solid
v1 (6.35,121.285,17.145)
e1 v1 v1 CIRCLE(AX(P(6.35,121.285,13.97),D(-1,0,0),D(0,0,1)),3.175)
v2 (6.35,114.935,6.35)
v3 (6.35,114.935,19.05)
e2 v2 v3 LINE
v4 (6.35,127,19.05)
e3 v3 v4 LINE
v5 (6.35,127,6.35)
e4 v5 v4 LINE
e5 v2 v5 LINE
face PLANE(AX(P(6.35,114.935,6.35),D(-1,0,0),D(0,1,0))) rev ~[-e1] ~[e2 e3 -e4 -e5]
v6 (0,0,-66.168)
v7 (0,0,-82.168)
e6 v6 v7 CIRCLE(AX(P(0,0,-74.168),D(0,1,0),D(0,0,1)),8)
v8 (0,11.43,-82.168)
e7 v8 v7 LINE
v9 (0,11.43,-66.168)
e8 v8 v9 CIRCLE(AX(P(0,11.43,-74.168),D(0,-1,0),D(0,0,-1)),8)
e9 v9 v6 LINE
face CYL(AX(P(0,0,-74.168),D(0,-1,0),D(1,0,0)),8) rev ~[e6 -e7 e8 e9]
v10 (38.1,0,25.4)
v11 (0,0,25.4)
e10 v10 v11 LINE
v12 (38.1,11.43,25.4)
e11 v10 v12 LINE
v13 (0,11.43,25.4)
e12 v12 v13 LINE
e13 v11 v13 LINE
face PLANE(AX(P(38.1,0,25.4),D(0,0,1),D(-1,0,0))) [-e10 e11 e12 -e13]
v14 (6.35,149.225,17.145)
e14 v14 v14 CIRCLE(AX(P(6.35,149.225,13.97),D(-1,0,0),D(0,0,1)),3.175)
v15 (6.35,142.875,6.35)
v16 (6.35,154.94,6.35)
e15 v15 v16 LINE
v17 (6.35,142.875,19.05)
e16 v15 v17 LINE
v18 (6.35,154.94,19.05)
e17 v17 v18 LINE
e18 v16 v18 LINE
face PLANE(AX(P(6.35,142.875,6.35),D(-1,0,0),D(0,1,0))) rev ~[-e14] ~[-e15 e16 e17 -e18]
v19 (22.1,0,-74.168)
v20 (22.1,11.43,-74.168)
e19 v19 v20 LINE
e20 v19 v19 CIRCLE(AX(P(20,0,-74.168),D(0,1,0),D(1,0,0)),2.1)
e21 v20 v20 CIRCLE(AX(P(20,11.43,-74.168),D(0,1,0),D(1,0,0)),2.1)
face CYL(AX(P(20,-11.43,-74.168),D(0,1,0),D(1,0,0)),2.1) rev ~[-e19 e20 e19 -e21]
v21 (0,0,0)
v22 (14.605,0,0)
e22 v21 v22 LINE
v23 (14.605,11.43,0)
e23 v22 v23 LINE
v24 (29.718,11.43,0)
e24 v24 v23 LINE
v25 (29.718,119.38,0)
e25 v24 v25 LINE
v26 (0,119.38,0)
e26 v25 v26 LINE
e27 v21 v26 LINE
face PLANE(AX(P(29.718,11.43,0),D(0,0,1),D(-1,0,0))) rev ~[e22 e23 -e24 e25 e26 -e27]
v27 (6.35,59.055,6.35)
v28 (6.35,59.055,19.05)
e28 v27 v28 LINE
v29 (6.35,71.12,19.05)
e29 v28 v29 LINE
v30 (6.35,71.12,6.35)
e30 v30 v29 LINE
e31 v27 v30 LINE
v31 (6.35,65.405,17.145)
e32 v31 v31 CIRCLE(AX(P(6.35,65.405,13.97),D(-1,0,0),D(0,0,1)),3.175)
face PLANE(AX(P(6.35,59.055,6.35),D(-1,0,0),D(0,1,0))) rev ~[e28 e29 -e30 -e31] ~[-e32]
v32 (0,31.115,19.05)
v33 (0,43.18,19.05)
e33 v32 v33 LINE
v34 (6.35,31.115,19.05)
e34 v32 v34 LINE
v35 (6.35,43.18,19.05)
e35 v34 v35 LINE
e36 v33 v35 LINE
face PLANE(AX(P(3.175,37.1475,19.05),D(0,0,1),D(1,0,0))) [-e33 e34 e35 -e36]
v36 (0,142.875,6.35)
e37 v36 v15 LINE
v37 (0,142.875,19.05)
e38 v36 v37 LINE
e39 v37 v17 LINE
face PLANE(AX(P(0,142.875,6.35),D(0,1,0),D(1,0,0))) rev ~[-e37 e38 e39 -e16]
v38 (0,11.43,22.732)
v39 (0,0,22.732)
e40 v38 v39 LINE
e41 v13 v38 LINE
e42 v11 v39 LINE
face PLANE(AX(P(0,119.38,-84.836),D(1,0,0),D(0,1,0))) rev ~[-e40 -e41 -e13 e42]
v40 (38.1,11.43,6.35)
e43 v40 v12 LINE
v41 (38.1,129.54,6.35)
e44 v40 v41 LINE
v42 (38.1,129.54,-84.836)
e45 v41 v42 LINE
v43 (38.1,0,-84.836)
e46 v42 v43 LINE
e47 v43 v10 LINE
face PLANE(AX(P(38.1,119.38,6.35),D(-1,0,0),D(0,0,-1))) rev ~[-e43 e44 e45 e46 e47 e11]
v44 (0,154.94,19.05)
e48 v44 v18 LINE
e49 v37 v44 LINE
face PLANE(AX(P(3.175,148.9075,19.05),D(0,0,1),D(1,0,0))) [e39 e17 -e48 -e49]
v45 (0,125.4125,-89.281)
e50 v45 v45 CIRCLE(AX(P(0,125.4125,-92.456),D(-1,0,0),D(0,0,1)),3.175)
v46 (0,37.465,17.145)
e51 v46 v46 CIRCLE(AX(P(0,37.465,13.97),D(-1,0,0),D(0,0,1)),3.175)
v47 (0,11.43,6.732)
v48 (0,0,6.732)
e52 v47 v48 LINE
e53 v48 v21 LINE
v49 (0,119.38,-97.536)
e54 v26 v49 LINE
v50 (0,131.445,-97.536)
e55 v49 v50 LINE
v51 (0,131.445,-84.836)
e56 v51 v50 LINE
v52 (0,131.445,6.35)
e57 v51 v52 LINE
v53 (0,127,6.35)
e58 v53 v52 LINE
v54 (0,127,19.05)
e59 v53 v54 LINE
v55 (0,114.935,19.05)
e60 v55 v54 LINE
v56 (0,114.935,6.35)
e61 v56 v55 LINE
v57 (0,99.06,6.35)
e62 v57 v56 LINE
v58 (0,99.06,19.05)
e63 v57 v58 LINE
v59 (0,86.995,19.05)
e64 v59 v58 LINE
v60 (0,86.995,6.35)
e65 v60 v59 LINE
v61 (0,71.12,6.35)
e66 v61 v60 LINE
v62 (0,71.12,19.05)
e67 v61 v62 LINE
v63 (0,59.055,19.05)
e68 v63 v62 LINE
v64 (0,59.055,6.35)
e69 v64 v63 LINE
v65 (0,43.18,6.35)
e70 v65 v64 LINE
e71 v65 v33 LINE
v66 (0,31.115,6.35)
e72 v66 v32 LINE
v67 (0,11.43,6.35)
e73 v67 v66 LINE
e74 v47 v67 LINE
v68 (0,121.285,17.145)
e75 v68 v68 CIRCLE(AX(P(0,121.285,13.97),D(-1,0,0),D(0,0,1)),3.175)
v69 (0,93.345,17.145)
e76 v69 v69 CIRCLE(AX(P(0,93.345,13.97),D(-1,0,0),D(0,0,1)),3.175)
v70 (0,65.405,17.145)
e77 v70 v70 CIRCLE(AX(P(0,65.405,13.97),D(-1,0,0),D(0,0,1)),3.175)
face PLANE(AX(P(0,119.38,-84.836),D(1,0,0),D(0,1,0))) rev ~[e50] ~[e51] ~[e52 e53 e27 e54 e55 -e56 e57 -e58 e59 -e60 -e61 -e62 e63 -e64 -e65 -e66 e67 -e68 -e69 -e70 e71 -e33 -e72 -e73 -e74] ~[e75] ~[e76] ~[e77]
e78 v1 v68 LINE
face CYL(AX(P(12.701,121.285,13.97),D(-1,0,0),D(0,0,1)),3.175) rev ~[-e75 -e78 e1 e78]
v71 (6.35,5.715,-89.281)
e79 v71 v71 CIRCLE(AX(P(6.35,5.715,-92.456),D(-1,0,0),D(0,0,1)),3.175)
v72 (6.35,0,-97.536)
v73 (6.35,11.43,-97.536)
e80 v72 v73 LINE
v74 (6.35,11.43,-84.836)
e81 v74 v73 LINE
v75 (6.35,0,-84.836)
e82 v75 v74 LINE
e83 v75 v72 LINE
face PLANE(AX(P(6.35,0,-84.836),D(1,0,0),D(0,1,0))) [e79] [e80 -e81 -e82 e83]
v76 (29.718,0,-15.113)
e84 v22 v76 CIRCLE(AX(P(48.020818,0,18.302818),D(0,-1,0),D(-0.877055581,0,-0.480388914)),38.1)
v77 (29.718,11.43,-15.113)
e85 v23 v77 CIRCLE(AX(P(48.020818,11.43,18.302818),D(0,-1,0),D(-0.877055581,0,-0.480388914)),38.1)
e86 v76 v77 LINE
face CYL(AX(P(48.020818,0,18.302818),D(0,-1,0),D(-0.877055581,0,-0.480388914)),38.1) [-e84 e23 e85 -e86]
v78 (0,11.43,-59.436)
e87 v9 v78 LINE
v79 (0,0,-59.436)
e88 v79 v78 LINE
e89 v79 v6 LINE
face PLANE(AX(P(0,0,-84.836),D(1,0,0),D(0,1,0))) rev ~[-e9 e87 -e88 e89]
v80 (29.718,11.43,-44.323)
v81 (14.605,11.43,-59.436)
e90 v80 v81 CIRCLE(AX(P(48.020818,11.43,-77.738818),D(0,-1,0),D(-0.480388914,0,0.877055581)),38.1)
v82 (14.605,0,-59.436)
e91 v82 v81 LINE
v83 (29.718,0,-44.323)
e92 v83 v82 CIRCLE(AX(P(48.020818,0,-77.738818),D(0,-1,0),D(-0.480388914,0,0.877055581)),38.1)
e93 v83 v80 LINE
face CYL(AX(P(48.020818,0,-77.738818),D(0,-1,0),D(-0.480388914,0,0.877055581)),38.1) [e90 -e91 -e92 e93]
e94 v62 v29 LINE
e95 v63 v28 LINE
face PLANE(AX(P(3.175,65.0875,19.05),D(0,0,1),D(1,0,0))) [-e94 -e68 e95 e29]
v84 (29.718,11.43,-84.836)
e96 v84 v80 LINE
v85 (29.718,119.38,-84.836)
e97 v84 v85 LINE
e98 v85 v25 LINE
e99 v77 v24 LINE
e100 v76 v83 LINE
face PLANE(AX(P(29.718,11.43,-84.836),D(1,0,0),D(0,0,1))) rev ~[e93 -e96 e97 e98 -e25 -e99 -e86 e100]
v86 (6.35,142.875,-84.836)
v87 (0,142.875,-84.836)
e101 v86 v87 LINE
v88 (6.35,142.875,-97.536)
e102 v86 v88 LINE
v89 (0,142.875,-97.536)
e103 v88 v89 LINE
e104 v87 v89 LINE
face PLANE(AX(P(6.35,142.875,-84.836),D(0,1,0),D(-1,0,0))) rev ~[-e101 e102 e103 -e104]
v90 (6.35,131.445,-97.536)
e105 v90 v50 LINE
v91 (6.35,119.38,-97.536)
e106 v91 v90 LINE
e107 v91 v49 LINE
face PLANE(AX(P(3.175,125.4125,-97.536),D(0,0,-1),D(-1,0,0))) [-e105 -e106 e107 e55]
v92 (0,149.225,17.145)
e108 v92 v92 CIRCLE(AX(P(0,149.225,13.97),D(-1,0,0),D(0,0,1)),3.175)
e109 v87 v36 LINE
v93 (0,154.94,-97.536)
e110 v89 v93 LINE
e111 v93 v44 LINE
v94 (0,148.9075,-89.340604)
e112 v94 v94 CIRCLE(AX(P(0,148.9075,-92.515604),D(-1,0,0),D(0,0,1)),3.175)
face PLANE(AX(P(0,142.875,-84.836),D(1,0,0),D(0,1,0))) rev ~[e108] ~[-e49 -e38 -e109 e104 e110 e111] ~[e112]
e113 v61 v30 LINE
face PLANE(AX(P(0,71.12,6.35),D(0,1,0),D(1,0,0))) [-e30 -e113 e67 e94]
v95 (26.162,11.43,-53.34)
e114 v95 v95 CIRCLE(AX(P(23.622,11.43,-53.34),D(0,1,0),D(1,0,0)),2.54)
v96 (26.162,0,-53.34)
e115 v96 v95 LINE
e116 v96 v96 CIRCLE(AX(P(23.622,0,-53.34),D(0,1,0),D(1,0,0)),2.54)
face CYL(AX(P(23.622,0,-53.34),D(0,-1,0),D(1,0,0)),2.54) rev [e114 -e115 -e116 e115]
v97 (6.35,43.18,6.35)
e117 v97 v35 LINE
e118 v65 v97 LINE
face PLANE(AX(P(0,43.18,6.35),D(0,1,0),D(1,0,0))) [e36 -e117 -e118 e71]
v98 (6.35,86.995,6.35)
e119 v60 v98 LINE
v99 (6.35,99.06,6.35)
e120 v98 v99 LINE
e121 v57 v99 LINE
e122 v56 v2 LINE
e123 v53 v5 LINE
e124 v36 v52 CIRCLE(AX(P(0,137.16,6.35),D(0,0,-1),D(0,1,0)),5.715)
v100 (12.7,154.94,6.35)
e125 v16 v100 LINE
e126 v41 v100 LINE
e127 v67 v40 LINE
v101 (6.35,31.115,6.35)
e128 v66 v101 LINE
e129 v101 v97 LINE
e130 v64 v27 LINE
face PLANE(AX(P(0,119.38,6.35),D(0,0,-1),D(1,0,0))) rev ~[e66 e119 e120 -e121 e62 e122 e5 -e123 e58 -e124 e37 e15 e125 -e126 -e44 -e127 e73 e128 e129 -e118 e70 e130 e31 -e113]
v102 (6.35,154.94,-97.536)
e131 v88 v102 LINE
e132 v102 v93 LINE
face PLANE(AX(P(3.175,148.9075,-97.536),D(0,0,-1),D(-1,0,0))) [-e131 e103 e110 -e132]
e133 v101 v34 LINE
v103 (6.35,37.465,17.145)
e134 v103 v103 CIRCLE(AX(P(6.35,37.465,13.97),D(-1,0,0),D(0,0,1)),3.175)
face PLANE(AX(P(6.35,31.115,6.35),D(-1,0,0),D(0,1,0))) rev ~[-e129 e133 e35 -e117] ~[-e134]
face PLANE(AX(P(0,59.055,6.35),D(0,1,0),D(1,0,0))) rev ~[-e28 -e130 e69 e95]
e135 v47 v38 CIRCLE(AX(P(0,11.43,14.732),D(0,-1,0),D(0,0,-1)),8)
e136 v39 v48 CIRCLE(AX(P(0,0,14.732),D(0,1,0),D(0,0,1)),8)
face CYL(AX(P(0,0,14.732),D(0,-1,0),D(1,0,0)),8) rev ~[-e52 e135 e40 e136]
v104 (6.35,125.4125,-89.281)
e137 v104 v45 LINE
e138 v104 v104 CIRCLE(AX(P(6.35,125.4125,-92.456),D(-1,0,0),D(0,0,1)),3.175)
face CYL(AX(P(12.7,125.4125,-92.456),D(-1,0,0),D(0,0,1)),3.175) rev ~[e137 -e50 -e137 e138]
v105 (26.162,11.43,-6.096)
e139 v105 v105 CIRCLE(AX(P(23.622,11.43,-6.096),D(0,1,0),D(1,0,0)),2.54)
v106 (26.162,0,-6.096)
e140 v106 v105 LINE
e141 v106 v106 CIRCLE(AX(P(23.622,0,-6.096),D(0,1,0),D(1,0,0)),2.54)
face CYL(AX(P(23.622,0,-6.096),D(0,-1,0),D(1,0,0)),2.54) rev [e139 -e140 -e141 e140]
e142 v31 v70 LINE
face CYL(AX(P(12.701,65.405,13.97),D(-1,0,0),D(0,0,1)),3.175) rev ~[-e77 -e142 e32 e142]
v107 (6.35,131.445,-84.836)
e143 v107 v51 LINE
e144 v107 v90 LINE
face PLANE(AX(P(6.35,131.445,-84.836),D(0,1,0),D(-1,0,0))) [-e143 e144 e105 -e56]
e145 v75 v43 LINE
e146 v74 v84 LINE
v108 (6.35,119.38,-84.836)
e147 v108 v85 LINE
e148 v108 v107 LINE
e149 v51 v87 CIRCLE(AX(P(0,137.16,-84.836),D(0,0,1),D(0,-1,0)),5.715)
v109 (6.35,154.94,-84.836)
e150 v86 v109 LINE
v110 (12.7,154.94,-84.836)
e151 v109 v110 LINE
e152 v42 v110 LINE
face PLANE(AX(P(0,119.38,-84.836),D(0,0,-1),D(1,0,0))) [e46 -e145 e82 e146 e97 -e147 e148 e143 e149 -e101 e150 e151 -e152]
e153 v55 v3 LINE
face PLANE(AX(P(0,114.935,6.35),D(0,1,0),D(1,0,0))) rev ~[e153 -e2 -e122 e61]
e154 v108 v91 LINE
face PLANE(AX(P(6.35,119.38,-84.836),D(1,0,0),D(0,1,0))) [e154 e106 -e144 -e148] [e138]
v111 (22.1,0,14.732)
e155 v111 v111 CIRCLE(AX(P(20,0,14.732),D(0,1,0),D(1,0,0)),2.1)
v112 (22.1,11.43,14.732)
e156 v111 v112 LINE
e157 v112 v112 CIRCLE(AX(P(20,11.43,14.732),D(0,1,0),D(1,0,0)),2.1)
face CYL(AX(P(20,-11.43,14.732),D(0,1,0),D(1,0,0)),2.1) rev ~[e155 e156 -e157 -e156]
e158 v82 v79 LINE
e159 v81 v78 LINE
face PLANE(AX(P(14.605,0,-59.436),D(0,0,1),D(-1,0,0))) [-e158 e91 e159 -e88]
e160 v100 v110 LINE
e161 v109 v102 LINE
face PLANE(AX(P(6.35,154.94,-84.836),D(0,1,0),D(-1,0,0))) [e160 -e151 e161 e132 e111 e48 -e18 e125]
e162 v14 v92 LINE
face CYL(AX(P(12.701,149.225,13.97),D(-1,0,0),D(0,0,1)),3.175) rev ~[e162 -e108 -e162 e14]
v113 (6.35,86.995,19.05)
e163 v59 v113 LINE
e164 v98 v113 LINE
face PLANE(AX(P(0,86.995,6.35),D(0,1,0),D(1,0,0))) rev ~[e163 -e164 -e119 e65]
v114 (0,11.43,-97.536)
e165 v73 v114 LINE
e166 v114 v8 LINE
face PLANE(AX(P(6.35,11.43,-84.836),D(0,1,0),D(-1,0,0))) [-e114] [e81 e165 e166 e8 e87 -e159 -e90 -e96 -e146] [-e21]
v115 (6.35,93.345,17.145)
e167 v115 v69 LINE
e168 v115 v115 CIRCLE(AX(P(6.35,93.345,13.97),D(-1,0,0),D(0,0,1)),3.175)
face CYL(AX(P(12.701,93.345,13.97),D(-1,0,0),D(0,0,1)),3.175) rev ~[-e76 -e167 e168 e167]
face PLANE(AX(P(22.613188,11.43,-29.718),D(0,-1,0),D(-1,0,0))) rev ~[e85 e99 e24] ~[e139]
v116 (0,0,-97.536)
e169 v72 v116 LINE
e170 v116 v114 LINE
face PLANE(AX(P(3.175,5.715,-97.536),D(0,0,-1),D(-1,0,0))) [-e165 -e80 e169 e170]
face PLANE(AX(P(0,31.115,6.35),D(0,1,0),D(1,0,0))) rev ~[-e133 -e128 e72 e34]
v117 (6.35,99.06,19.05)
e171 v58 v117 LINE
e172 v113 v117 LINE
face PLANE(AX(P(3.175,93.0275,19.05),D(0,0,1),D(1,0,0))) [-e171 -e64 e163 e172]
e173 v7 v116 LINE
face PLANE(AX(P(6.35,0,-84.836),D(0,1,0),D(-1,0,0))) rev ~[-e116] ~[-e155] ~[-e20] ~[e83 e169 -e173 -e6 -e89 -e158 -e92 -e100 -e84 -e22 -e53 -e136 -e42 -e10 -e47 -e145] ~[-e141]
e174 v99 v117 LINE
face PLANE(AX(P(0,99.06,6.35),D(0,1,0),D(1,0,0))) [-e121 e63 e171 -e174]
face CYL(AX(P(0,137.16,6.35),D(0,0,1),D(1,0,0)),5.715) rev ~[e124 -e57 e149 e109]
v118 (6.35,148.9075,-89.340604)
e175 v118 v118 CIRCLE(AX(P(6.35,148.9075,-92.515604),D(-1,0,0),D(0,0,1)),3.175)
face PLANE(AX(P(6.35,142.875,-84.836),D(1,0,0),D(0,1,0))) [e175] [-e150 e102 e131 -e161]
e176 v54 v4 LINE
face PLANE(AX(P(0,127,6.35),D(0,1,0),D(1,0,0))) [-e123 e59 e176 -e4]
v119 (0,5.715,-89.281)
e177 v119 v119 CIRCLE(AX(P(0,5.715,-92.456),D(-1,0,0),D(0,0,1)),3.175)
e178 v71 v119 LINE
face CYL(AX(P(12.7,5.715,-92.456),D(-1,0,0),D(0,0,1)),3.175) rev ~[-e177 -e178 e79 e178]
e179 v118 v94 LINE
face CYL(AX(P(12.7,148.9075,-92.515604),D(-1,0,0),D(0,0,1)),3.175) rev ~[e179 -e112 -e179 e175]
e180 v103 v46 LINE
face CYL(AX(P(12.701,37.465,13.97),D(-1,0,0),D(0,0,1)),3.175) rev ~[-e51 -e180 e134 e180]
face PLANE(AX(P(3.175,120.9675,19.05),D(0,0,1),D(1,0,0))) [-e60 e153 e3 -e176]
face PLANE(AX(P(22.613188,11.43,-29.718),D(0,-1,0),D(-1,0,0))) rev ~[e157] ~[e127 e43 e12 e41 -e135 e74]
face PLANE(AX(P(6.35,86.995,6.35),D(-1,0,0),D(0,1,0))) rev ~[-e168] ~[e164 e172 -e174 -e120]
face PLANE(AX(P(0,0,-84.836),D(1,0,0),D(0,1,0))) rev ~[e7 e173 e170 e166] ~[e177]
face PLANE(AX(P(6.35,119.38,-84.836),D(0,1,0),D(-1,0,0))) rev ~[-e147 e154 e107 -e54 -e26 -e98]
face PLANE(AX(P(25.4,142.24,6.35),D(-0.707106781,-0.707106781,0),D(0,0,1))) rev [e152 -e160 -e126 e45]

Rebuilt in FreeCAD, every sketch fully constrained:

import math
import FreeCAD as App
import Part
import Sketcher
from FreeCAD import Vector
Q = App.Units.Quantity


def edges_at(feature, points):
    """Names of the edges that pass closest to the given points."""
    edges = feature.Shape.Edges
    near = lambda p: min(range(len(edges)), key=lambda i: edges[i].distToShape(Part.Vertex(*p))[0])
    return sorted({f"Edge{near(p) + 1}" for p in points})

doc = App.newDocument("Part")
body = doc.addObject("PartDesign::Body", "Body")

# Sketch on XZ plane
sketch1 = body.newObject("Sketcher::SketchObject", "Sketch")
sketch1.AttachmentSupport = (doc.getObject("XZ_Plane"), [""])
sketch1.MapMode = "FlatFace"
sketch1.addGeometry(Part.LineSegment(Vector(14.605, 0, 0), Vector(0, 0, 0)), False)
sketch1.addGeometry(Part.LineSegment(Vector(0, 0, 0), Vector(0, 25.4, 0)), False)
sketch1.addGeometry(Part.LineSegment(Vector(0, 25.4, 0), Vector(38.1, 25.4, 0)), False)
sketch1.addGeometry(Part.LineSegment(Vector(38.1, 25.4, 0), Vector(38.1, -84.836, 0)), False)
sketch1.addGeometry(Part.LineSegment(Vector(38.1, -84.836, 0), Vector(0, -84.836, 0)), False)
sketch1.addGeometry(Part.LineSegment(Vector(0, -84.836, 0), Vector(0, -59.436, 0)), False)
sketch1.addGeometry(Part.LineSegment(Vector(0, -59.436, 0), Vector(14.605, -59.436, 0)), False)
sketch1.addGeometry(Part.ArcOfCircle(Part.Circle(Vector(48.020818, -77.738818, 0), Vector(0, 0, 1), 38.1), math.radians(118.710806), math.radians(151.289194)), False)
sketch1.addGeometry(Part.LineSegment(Vector(29.718, -44.323, 0), Vector(29.718, -15.113, 0)), False)
sketch1.addGeometry(Part.ArcOfCircle(Part.Circle(Vector(48.020818, 18.302818, 0), Vector(0, 0, 1), 38.1), math.radians(-151.289194), math.radians(-118.710806)), False)
sketch1.addGeometry(Part.Circle(Vector(23.622, -6.096, 0), Vector(0, 0, 1), 2.54), False)
sketch1.addGeometry(Part.Circle(Vector(23.622, -53.34, 0), Vector(0, 0, 1), 2.54), False)
sketch1.addConstraint(Sketcher.Constraint("Coincident", 0, 2, 1, 1))
sketch1.addConstraint(Sketcher.Constraint("Coincident", 1, 2, 2, 1))
sketch1.addConstraint(Sketcher.Constraint("Coincident", 2, 2, 3, 1))
sketch1.addConstraint(Sketcher.Constraint("Coincident", 3, 2, 4, 1))
sketch1.addConstraint(Sketcher.Constraint("Coincident", 4, 2, 5, 1))
sketch1.addConstraint(Sketcher.Constraint("Coincident", 5, 2, 6, 1))
sketch1.addConstraint(Sketcher.Constraint("Coincident", 6, 2, 7, 2))
sketch1.addConstraint(Sketcher.Constraint("Coincident", 7, 1, 8, 1))
sketch1.addConstraint(Sketcher.Constraint("Coincident", 8, 2, 9, 2))
sketch1.addConstraint(Sketcher.Constraint("Coincident", 9, 1, 0, 1))
sketch1.addConstraint(Sketcher.Constraint("Horizontal", 0))
sketch1.addConstraint(Sketcher.Constraint("Vertical", 1))
sketch1.addConstraint(Sketcher.Constraint("Horizontal", 2))
sketch1.addConstraint(Sketcher.Constraint("Vertical", 3))
sketch1.addConstraint(Sketcher.Constraint("Horizontal", 4))
sketch1.addConstraint(Sketcher.Constraint("Vertical", 5))
sketch1.addConstraint(Sketcher.Constraint("Horizontal", 6))
sketch1.addConstraint(Sketcher.Constraint("Vertical", 8))
sketch1.addConstraint(Sketcher.Constraint("Coincident", 0, 2, -1, 1))
sketch1.addConstraint(Sketcher.Constraint("Equal", 7, 9))
sketch1.addConstraint(Sketcher.Constraint("Equal", 10, 11))
sketch1.addConstraint(Sketcher.Constraint("PointOnObject", 4, 2, -2))
sketch1.addConstraint(Sketcher.Constraint("Vertical", 7, 3, 9, 3))
sketch1.addConstraint(Sketcher.Constraint("Vertical", 10, 3, 11, 3))
sketch1.addConstraint(Sketcher.Constraint("Vertical", 6, 2, 9, 1))
sketch1.addConstraint(Sketcher.Constraint("Equal", 1, 5))
sketch1.addConstraint(Sketcher.Constraint("Diameter", 10, Q("0.2 in")))
sketch1.addConstraint(Sketcher.Constraint("Radius", 7, Q("1.5 in")))
sketch1.addConstraint(Sketcher.Constraint("DistanceY", 1, 1, 1, 2, Q("1 in")))
sketch1.addConstraint(Sketcher.Constraint("DistanceX", 2, 1, 2, 2, Q("1.5 in")))
sketch1.addConstraint(Sketcher.Constraint("DistanceY", 3, 2, 3, 1, Q("4.34 in")))
sketch1.addConstraint(Sketcher.Constraint("DistanceY", 8, 1, 8, 2, Q("1.15 in")))
sketch1.addConstraint(Sketcher.Constraint("DistanceY", 11, 3, -1, 1, Q("2.1 in")))
sketch1.addConstraint(Sketcher.Constraint("DistanceY", 3, 2, 10, 3, Q("3.1 in")))
sketch1.addConstraint(Sketcher.Constraint("DistanceX", 0, 2, 0, 1, Q("0.575 in")))
sketch1.addConstraint(Sketcher.Constraint("DistanceX", -1, 1, 10, 3, Q("0.93 in")))
sketch1.addConstraint(Sketcher.Constraint("DistanceX", -1, 1, 7, 1, Q("1.17 in")))
pad1 = body.newObject("PartDesign::Pad", "Pad")
pad1.Profile = sketch1
pad1.Length = Q("0.45 in")
pad1.Reversed = True

# Sketch on XZ plane
sketch2 = body.newObject("Sketcher::SketchObject", "Sketch001")
sketch2.AttachmentSupport = (doc.getObject("XZ_Plane"), [""])
sketch2.MapMode = "FlatFace"
sketch2.AttachmentOffset = App.Placement(Vector(0, 0, -0.45 * 25.4), App.Rotation())
sketch2.addGeometry(Part.LineSegment(Vector(38.1, -84.836, 0), Vector(29.718, -84.836, 0)), False)
sketch2.addGeometry(Part.LineSegment(Vector(29.718, -84.836, 0), Vector(29.718, 0, 0)), False)
sketch2.addGeometry(Part.LineSegment(Vector(29.718, 0, 0), Vector(0, 0, 0)), False)
sketch2.addGeometry(Part.LineSegment(Vector(0, 0, 0), Vector(0, 6.35, 0)), False)
sketch2.addGeometry(Part.LineSegment(Vector(0, 6.35, 0), Vector(38.1, 6.35, 0)), False)
sketch2.addGeometry(Part.LineSegment(Vector(38.1, 6.35, 0), Vector(38.1, -84.836, 0)), False)
sketch2.addConstraint(Sketcher.Constraint("Coincident", 0, 2, 1, 1))
sketch2.addConstraint(Sketcher.Constraint("Coincident", 1, 2, 2, 1))
sketch2.addConstraint(Sketcher.Constraint("Coincident", 2, 2, 3, 1))
sketch2.addConstraint(Sketcher.Constraint("Coincident", 3, 2, 4, 1))
sketch2.addConstraint(Sketcher.Constraint("Coincident", 4, 2, 5, 1))
sketch2.addConstraint(Sketcher.Constraint("Coincident", 5, 2, 0, 1))
sketch2.addConstraint(Sketcher.Constraint("Horizontal", 0))
sketch2.addConstraint(Sketcher.Constraint("Vertical", 1))
sketch2.addConstraint(Sketcher.Constraint("Horizontal", 2))
sketch2.addConstraint(Sketcher.Constraint("Vertical", 3))
sketch2.addConstraint(Sketcher.Constraint("Horizontal", 4))
sketch2.addConstraint(Sketcher.Constraint("Vertical", 5))
sketch2.addConstraint(Sketcher.Constraint("Coincident", 2, 2, -1, 1))
sketch2.addConstraint(Sketcher.Constraint("DistanceX", 4, 1, 4, 2, Q("1.5 in")))
sketch2.addConstraint(Sketcher.Constraint("DistanceX", 0, 2, 0, 1, Q("0.33 in")))
sketch2.addConstraint(Sketcher.Constraint("DistanceY", 1, 1, 1, 2, Q("3.34 in")))
sketch2.addConstraint(Sketcher.Constraint("DistanceY", 3, 1, 3, 2, Q("0.25 in")))
pad2 = body.newObject("PartDesign::Pad", "Pad001")
pad2.Profile = sketch2
pad2.Length = Q("4.25 in")
pad2.Reversed = True

# Sketch on XZ plane
sketch3 = body.newObject("Sketcher::SketchObject", "Sketch002")
sketch3.AttachmentSupport = (doc.getObject("XZ_Plane"), [""])
sketch3.MapMode = "FlatFace"
sketch3.AttachmentOffset = App.Placement(Vector(0, 0, -4.7 * 25.4), App.Rotation())
sketch3.addGeometry(Part.LineSegment(Vector(0, -84.836, 0), Vector(0, 6.35, 0)), False)
sketch3.addGeometry(Part.LineSegment(Vector(0, 6.35, 0), Vector(38.1, 6.35, 0)), False)
sketch3.addGeometry(Part.LineSegment(Vector(38.1, 6.35, 0), Vector(38.1, -84.836, 0)), False)
sketch3.addGeometry(Part.LineSegment(Vector(38.1, -84.836, 0), Vector(0, -84.836, 0)), False)
sketch3.addConstraint(Sketcher.Constraint("Coincident", 0, 2, 1, 1))
sketch3.addConstraint(Sketcher.Constraint("Coincident", 1, 2, 2, 1))
sketch3.addConstraint(Sketcher.Constraint("Coincident", 2, 2, 3, 1))
sketch3.addConstraint(Sketcher.Constraint("Coincident", 3, 2, 0, 1))
sketch3.addConstraint(Sketcher.Constraint("Vertical", 0))
sketch3.addConstraint(Sketcher.Constraint("Horizontal", 1))
sketch3.addConstraint(Sketcher.Constraint("Vertical", 2))
sketch3.addConstraint(Sketcher.Constraint("Horizontal", 3))
sketch3.addConstraint(Sketcher.Constraint("PointOnObject", 0, 2, -2))
sketch3.addConstraint(Sketcher.Constraint("DistanceX", 1, 1, 1, 2, Q("1.5 in")))
sketch3.addConstraint(Sketcher.Constraint("DistanceY", 0, 1, 0, 2, Q("3.59 in")))
sketch3.addConstraint(Sketcher.Constraint("DistanceY", -1, 1, 0, 2, Q("0.25 in")))
pad3 = body.newObject("PartDesign::Pad", "Pad002")
pad3.Profile = sketch3
pad3.Length = Q("1.4 in")
pad3.Reversed = True

# Sketch on XY plane
sketch4 = body.newObject("Sketcher::SketchObject", "Sketch003")
sketch4.AttachmentSupport = (doc.getObject("XY_Plane"), [""])
sketch4.MapMode = "FlatFace"
sketch4.AttachmentOffset = App.Placement(Vector(0, 0, 0.25 * 25.4), App.Rotation())
sketch4.addGeometry(Part.Circle(Vector(0, 137.16, 0), Vector(0, 0, 1), 5.715), False)
sketch4.addConstraint(Sketcher.Constraint("PointOnObject", 0, 3, -2))
sketch4.addConstraint(Sketcher.Constraint("Diameter", 0, Q("0.45 in")))
sketch4.addConstraint(Sketcher.Constraint("DistanceY", -1, 1, 0, 3, Q("5.4 in")))
pocket1 = body.newObject("PartDesign::Pocket", "Pocket")
pocket1.Profile = sketch4
pocket1.Type = "UpToFirst"

# Sketch on XY plane
sketch5 = body.newObject("Sketcher::SketchObject", "Sketch004")
sketch5.AttachmentSupport = (doc.getObject("XY_Plane"), [""])
sketch5.MapMode = "FlatFace"
sketch5.AttachmentOffset = App.Placement(Vector(0, 0, 0.25 * 25.4), App.Rotation())
sketch5.addGeometry(Part.LineSegment(Vector(0, 154.94, 0), Vector(0, 142.875, 0)), False)
sketch5.addGeometry(Part.LineSegment(Vector(0, 142.875, 0), Vector(6.35, 142.875, 0)), False)
sketch5.addGeometry(Part.LineSegment(Vector(6.35, 142.875, 0), Vector(6.35, 154.94, 0)), False)
sketch5.addGeometry(Part.LineSegment(Vector(6.35, 154.94, 0), Vector(0, 154.94, 0)), False)
sketch5.addConstraint(Sketcher.Constraint("Coincident", 0, 2, 1, 1))
sketch5.addConstraint(Sketcher.Constraint("Coincident", 1, 2, 2, 1))
sketch5.addConstraint(Sketcher.Constraint("Coincident", 2, 2, 3, 1))
sketch5.addConstraint(Sketcher.Constraint("Coincident", 3, 2, 0, 1))
sketch5.addConstraint(Sketcher.Constraint("Vertical", 0))
sketch5.addConstraint(Sketcher.Constraint("Horizontal", 1))
sketch5.addConstraint(Sketcher.Constraint("Vertical", 2))
sketch5.addConstraint(Sketcher.Constraint("Horizontal", 3))
sketch5.addConstraint(Sketcher.Constraint("PointOnObject", 0, 2, -2))
sketch5.addConstraint(Sketcher.Constraint("DistanceX", 1, 1, 1, 2, Q("0.25 in")))
sketch5.addConstraint(Sketcher.Constraint("DistanceY", -1, 1, 2, 2, Q("6.1 in")))
sketch5.addConstraint(Sketcher.Constraint("DistanceY", 0, 2, 0, 1, Q("0.475 in")))
pad4 = body.newObject("PartDesign::Pad", "Pad003")
pad4.Profile = sketch5
pad4.Length = Q("0.5 in")

# Sketch on YZ plane
sketch6 = body.newObject("Sketcher::SketchObject", "Sketch005")
sketch6.AttachmentSupport = (doc.getObject("YZ_Plane"), [""])
sketch6.MapMode = "FlatFace"
sketch6.AttachmentOffset = App.Placement(Vector(0, 0, 0.25 * 25.4), App.Rotation())
sketch6.addGeometry(Part.Circle(Vector(149.225, 13.97, 0), Vector(0, 0, 1), 3.175), False)
sketch6.addConstraint(Sketcher.Constraint("Diameter", 0, Q("0.25 in")))
sketch6.addConstraint(Sketcher.Constraint("DistanceY", -1, 1, 0, 3, Q("0.55 in")))
sketch6.addConstraint(Sketcher.Constraint("DistanceX", -1, 1, 0, 3, Q("5.875 in")))
doc.recompute()
hole = body.newObject("PartDesign::Hole", "Hole")
hole.Profile = sketch6
hole.ThreadType = "None"
hole.Diameter = Q("0.25 in")
hole.DepthType = "Dimension"
hole.Depth = 6.351
hole.DrillPoint = "Flat"
doc.recompute()

linearpattern = body.newObject("PartDesign::LinearPattern", "LinearPattern")
linearpattern.Originals = [pad4, hole]
linearpattern.Direction = (doc.getObject("Y_Axis"), [""])
linearpattern.Mode = "offset"
linearpattern.Offset = Q("1.1 in")
linearpattern.Occurrences = 5
linearpattern.Reversed = True
body.Tip = linearpattern

# Sketch on XY plane
sketch7 = body.newObject("Sketcher::SketchObject", "Sketch006")
sketch7.AttachmentSupport = (doc.getObject("XY_Plane"), [""])
sketch7.MapMode = "FlatFace"
sketch7.AttachmentOffset = App.Placement(Vector(0, 0, -3.34 * 25.4), App.Rotation())
sketch7.addGeometry(Part.LineSegment(Vector(6.35, 11.43, 0), Vector(6.35, 0, 0)), False)
sketch7.addGeometry(Part.LineSegment(Vector(6.35, 0, 0), Vector(0, 0, 0)), False)
sketch7.addGeometry(Part.LineSegment(Vector(0, 0, 0), Vector(0, 11.43, 0)), False)
sketch7.addGeometry(Part.LineSegment(Vector(0, 11.43, 0), Vector(6.35, 11.43, 0)), False)
sketch7.addConstraint(Sketcher.Constraint("Coincident", 0, 2, 1, 1))
sketch7.addConstraint(Sketcher.Constraint("Coincident", 1, 2, 2, 1))
sketch7.addConstraint(Sketcher.Constraint("Coincident", 2, 2, 3, 1))
sketch7.addConstraint(Sketcher.Constraint("Coincident", 3, 2, 0, 1))
sketch7.addConstraint(Sketcher.Constraint("Vertical", 0))
sketch7.addConstraint(Sketcher.Constraint("Horizontal", 1))
sketch7.addConstraint(Sketcher.Constraint("Vertical", 2))
sketch7.addConstraint(Sketcher.Constraint("Horizontal", 3))
sketch7.addConstraint(Sketcher.Constraint("Coincident", 1, 2, -1, 1))
sketch7.addConstraint(Sketcher.Constraint("DistanceX", 1, 2, 1, 1, Q("0.25 in")))
sketch7.addConstraint(Sketcher.Constraint("DistanceY", 0, 2, 0, 1, Q("0.45 in")))
pad5 = body.newObject("PartDesign::Pad", "Pad004")
pad5.Profile = sketch7
pad5.Length = Q("0.5 in")
pad5.Reversed = True

# Sketch on YZ plane
sketch8 = body.newObject("Sketcher::SketchObject", "Sketch007")
sketch8.AttachmentSupport = (doc.getObject("YZ_Plane"), [""])
sketch8.MapMode = "FlatFace"
sketch8.AttachmentOffset = App.Placement(Vector(0, 0, 0.25 * 25.4), App.Rotation())
sketch8.addGeometry(Part.Circle(Vector(5.715, -92.456, 0), Vector(0, 0, 1), 3.175), False)
sketch8.addConstraint(Sketcher.Constraint("Diameter", 0, Q("0.25 in")))
sketch8.addConstraint(Sketcher.Constraint("DistanceY", 0, 3, -1, 1, Q("3.64 in")))
sketch8.addConstraint(Sketcher.Constraint("DistanceX", -1, 1, 0, 3, Q("0.225 in")))
doc.recompute()
hole2 = body.newObject("PartDesign::Hole", "Hole001")
hole2.Profile = sketch8
hole2.ThreadType = "None"
hole2.Diameter = Q("0.25 in")
hole2.DepthType = "Dimension"
hole2.Depth = Q("0.25 in")
hole2.DrillPoint = "Flat"

# Sketch on XY plane
sketch9 = body.newObject("Sketcher::SketchObject", "Sketch008")
sketch9.AttachmentSupport = (doc.getObject("XY_Plane"), [""])
sketch9.MapMode = "FlatFace"
sketch9.AttachmentOffset = App.Placement(Vector(0, 0, -3.34 * 25.4), App.Rotation())
sketch9.addGeometry(Part.LineSegment(Vector(6.35, 154.94, 0), Vector(6.35, 142.875, 0)), False)
sketch9.addGeometry(Part.LineSegment(Vector(6.35, 142.875, 0), Vector(0, 142.875, 0)), False)
sketch9.addGeometry(Part.LineSegment(Vector(0, 142.875, 0), Vector(0, 154.94, 0)), False)
sketch9.addGeometry(Part.LineSegment(Vector(0, 154.94, 0), Vector(6.35, 154.94, 0)), False)
sketch9.addConstraint(Sketcher.Constraint("Coincident", 0, 2, 1, 1))
sketch9.addConstraint(Sketcher.Constraint("Coincident", 1, 2, 2, 1))
sketch9.addConstraint(Sketcher.Constraint("Coincident", 2, 2, 3, 1))
sketch9.addConstraint(Sketcher.Constraint("Coincident", 3, 2, 0, 1))
sketch9.addConstraint(Sketcher.Constraint("Vertical", 0))
sketch9.addConstraint(Sketcher.Constraint("Horizontal", 1))
sketch9.addConstraint(Sketcher.Constraint("Vertical", 2))
sketch9.addConstraint(Sketcher.Constraint("Horizontal", 3))
sketch9.addConstraint(Sketcher.Constraint("PointOnObject", 1, 2, -2))
sketch9.addConstraint(Sketcher.Constraint("DistanceX", 1, 2, 1, 1, Q("0.25 in")))
sketch9.addConstraint(Sketcher.Constraint("DistanceY", -1, 1, 2, 2, Q("6.1 in")))
sketch9.addConstraint(Sketcher.Constraint("DistanceY", 0, 2, 0, 1, Q("0.475 in")))
pad6 = body.newObject("PartDesign::Pad", "Pad005")
pad6.Profile = sketch9
pad6.Length = Q("0.5 in")
pad6.Reversed = True

# Sketch on YZ plane
sketch10 = body.newObject("Sketcher::SketchObject", "Sketch009")
sketch10.AttachmentSupport = (doc.getObject("YZ_Plane"), [""])
sketch10.MapMode = "FlatFace"
sketch10.AttachmentOffset = App.Placement(Vector(0, 0, 0.25 * 25.4), App.Rotation())
sketch10.addGeometry(Part.Circle(Vector(148.9075, -92.515604, 0), Vector(0, 0, 1), 3.175), False)
sketch10.addConstraint(Sketcher.Constraint("Diameter", 0, Q("0.25 in")))
sketch10.addConstraint(Sketcher.Constraint("DistanceX", -1, 1, 0, 3, Q("5.8625 in")))
sketch10.addConstraint(Sketcher.Constraint("DistanceY", 0, 3, -1, 1, 92.515604))
doc.recompute()
hole3 = body.newObject("PartDesign::Hole", "Hole002")
hole3.Profile = sketch10
hole3.ThreadType = "None"
hole3.Diameter = Q("0.25 in")
hole3.DepthType = "Dimension"
hole3.Depth = Q("0.25 in")
hole3.DrillPoint = "Flat"

# Sketch on XY plane
sketch11 = body.newObject("Sketcher::SketchObject", "Sketch010")
sketch11.AttachmentSupport = (doc.getObject("XY_Plane"), [""])
sketch11.MapMode = "FlatFace"
sketch11.AttachmentOffset = App.Placement(Vector(0, 0, -3.34 * 25.4), App.Rotation())
sketch11.addGeometry(Part.LineSegment(Vector(6.35, 131.445, 0), Vector(6.35, 119.38, 0)), False)
sketch11.addGeometry(Part.LineSegment(Vector(6.35, 119.38, 0), Vector(0, 119.38, 0)), False)
sketch11.addGeometry(Part.LineSegment(Vector(0, 119.38, 0), Vector(0, 131.445, 0)), False)
sketch11.addGeometry(Part.LineSegment(Vector(0, 131.445, 0), Vector(6.35, 131.445, 0)), False)
sketch11.addConstraint(Sketcher.Constraint("Coincident", 0, 2, 1, 1))
sketch11.addConstraint(Sketcher.Constraint("Coincident", 1, 2, 2, 1))
sketch11.addConstraint(Sketcher.Constraint("Coincident", 2, 2, 3, 1))
sketch11.addConstraint(Sketcher.Constraint("Coincident", 3, 2, 0, 1))
sketch11.addConstraint(Sketcher.Constraint("Vertical", 0))
sketch11.addConstraint(Sketcher.Constraint("Horizontal", 1))
sketch11.addConstraint(Sketcher.Constraint("Vertical", 2))
sketch11.addConstraint(Sketcher.Constraint("Horizontal", 3))
sketch11.addConstraint(Sketcher.Constraint("PointOnObject", 1, 2, -2))
sketch11.addConstraint(Sketcher.Constraint("DistanceX", 1, 2, 1, 1, Q("0.25 in")))
sketch11.addConstraint(Sketcher.Constraint("DistanceY", -1, 1, 0, 2, Q("4.7 in")))
sketch11.addConstraint(Sketcher.Constraint("DistanceY", 0, 2, 0, 1, Q("0.475 in")))
pad7 = body.newObject("PartDesign::Pad", "Pad006")
pad7.Profile = sketch11
pad7.Length = Q("0.5 in")
pad7.Reversed = True

# Sketch on YZ plane
sketch12 = body.newObject("Sketcher::SketchObject", "Sketch011")
sketch12.AttachmentSupport = (doc.getObject("YZ_Plane"), [""])
sketch12.MapMode = "FlatFace"
sketch12.AttachmentOffset = App.Placement(Vector(0, 0, 0.25 * 25.4), App.Rotation())
sketch12.addGeometry(Part.Circle(Vector(125.4125, -92.456, 0), Vector(0, 0, 1), 3.175), False)
sketch12.addConstraint(Sketcher.Constraint("Diameter", 0, Q("0.25 in")))
sketch12.addConstraint(Sketcher.Constraint("DistanceY", 0, 3, -1, 1, Q("3.64 in")))
sketch12.addConstraint(Sketcher.Constraint("DistanceX", -1, 1, 0, 3, Q("4.9375 in")))
doc.recompute()
hole4 = body.newObject("PartDesign::Hole", "Hole003")
hole4.Profile = sketch12
hole4.ThreadType = "None"
hole4.Diameter = Q("0.25 in")
hole4.DepthType = "Dimension"
hole4.Depth = Q("0.25 in")
hole4.DrillPoint = "Flat"
doc.recompute()

chamfer = body.newObject("PartDesign::Chamfer", "Chamfer")
chamfer.Base = (hole4, edges_at(hole4, [(38.1, 154.94, -39.243)]))
chamfer.Size = Q("1 in")

# Sketch on XZ plane
sketch13 = body.newObject("Sketcher::SketchObject", "Sketch012")
sketch13.AttachmentSupport = (doc.getObject("XZ_Plane"), [""])
sketch13.MapMode = "FlatFace"
sketch13.addGeometry(Part.Circle(Vector(20, -74.168, 0), Vector(0, 0, 1), 2.1), False)
sketch13.addGeometry(Part.Circle(Vector(20, 14.732, 0), Vector(0, 0, 1), 2.1), False)
sketch13.addConstraint(Sketcher.Constraint("Equal", 0, 1))
sketch13.addConstraint(Sketcher.Constraint("Vertical", 0, 3, 1, 3))
sketch13.addConstraint(Sketcher.Constraint("DistanceY", 0, 3, 1, 3, Q("3.5 in")))
sketch13.addConstraint(Sketcher.Constraint("Diameter", 0, 4.2))
sketch13.addConstraint(Sketcher.Constraint("DistanceY", 0, 3, -1, 1, Q("2.92 in")))
sketch13.addConstraint(Sketcher.Constraint("DistanceX", -1, 1, 0, 3, 20.0))
doc.recompute()
hole5 = body.newObject("PartDesign::Hole", "Hole004")
hole5.Profile = sketch13
hole5.ThreadType = "None"
hole5.Diameter = 4.2
hole5.DepthType = "Dimension"
hole5.Depth = Q("0.45 in")
hole5.DrillPoint = "Flat"

# Sketch on XZ plane
sketch14 = body.newObject("Sketcher::SketchObject", "Sketch013")
sketch14.AttachmentSupport = (doc.getObject("XZ_Plane"), [""])
sketch14.MapMode = "FlatFace"
sketch14.addGeometry(Part.Circle(Vector(0, -74.168, 0), Vector(0, 0, 1), 8), False)
sketch14.addConstraint(Sketcher.Constraint("PointOnObject", 0, 3, -2))
sketch14.addConstraint(Sketcher.Constraint("Diameter", 0, 16.0))
sketch14.addConstraint(Sketcher.Constraint("DistanceY", 0, 3, -1, 1, Q("2.92 in")))
pocket2 = body.newObject("PartDesign::Pocket", "Pocket001")
pocket2.Profile = sketch14
pocket2.Type = "UpToFirst"

# Sketch on XZ plane
sketch15 = body.newObject("Sketcher::SketchObject", "Sketch014")
sketch15.AttachmentSupport = (doc.getObject("XZ_Plane"), [""])
sketch15.MapMode = "FlatFace"
sketch15.addGeometry(Part.Circle(Vector(0, 14.732, 0), Vector(0, 0, 1), 8), False)
sketch15.addConstraint(Sketcher.Constraint("PointOnObject", 0, 3, -2))
sketch15.addConstraint(Sketcher.Constraint("Diameter", 0, 16.0))
sketch15.addConstraint(Sketcher.Constraint("DistanceY", -1, 1, 0, 3, Q("0.58 in")))
pocket3 = body.newObject("PartDesign::Pocket", "Pocket002")
pocket3.Profile = sketch15
pocket3.Type = "UpToFirst"

doc.recompute()
